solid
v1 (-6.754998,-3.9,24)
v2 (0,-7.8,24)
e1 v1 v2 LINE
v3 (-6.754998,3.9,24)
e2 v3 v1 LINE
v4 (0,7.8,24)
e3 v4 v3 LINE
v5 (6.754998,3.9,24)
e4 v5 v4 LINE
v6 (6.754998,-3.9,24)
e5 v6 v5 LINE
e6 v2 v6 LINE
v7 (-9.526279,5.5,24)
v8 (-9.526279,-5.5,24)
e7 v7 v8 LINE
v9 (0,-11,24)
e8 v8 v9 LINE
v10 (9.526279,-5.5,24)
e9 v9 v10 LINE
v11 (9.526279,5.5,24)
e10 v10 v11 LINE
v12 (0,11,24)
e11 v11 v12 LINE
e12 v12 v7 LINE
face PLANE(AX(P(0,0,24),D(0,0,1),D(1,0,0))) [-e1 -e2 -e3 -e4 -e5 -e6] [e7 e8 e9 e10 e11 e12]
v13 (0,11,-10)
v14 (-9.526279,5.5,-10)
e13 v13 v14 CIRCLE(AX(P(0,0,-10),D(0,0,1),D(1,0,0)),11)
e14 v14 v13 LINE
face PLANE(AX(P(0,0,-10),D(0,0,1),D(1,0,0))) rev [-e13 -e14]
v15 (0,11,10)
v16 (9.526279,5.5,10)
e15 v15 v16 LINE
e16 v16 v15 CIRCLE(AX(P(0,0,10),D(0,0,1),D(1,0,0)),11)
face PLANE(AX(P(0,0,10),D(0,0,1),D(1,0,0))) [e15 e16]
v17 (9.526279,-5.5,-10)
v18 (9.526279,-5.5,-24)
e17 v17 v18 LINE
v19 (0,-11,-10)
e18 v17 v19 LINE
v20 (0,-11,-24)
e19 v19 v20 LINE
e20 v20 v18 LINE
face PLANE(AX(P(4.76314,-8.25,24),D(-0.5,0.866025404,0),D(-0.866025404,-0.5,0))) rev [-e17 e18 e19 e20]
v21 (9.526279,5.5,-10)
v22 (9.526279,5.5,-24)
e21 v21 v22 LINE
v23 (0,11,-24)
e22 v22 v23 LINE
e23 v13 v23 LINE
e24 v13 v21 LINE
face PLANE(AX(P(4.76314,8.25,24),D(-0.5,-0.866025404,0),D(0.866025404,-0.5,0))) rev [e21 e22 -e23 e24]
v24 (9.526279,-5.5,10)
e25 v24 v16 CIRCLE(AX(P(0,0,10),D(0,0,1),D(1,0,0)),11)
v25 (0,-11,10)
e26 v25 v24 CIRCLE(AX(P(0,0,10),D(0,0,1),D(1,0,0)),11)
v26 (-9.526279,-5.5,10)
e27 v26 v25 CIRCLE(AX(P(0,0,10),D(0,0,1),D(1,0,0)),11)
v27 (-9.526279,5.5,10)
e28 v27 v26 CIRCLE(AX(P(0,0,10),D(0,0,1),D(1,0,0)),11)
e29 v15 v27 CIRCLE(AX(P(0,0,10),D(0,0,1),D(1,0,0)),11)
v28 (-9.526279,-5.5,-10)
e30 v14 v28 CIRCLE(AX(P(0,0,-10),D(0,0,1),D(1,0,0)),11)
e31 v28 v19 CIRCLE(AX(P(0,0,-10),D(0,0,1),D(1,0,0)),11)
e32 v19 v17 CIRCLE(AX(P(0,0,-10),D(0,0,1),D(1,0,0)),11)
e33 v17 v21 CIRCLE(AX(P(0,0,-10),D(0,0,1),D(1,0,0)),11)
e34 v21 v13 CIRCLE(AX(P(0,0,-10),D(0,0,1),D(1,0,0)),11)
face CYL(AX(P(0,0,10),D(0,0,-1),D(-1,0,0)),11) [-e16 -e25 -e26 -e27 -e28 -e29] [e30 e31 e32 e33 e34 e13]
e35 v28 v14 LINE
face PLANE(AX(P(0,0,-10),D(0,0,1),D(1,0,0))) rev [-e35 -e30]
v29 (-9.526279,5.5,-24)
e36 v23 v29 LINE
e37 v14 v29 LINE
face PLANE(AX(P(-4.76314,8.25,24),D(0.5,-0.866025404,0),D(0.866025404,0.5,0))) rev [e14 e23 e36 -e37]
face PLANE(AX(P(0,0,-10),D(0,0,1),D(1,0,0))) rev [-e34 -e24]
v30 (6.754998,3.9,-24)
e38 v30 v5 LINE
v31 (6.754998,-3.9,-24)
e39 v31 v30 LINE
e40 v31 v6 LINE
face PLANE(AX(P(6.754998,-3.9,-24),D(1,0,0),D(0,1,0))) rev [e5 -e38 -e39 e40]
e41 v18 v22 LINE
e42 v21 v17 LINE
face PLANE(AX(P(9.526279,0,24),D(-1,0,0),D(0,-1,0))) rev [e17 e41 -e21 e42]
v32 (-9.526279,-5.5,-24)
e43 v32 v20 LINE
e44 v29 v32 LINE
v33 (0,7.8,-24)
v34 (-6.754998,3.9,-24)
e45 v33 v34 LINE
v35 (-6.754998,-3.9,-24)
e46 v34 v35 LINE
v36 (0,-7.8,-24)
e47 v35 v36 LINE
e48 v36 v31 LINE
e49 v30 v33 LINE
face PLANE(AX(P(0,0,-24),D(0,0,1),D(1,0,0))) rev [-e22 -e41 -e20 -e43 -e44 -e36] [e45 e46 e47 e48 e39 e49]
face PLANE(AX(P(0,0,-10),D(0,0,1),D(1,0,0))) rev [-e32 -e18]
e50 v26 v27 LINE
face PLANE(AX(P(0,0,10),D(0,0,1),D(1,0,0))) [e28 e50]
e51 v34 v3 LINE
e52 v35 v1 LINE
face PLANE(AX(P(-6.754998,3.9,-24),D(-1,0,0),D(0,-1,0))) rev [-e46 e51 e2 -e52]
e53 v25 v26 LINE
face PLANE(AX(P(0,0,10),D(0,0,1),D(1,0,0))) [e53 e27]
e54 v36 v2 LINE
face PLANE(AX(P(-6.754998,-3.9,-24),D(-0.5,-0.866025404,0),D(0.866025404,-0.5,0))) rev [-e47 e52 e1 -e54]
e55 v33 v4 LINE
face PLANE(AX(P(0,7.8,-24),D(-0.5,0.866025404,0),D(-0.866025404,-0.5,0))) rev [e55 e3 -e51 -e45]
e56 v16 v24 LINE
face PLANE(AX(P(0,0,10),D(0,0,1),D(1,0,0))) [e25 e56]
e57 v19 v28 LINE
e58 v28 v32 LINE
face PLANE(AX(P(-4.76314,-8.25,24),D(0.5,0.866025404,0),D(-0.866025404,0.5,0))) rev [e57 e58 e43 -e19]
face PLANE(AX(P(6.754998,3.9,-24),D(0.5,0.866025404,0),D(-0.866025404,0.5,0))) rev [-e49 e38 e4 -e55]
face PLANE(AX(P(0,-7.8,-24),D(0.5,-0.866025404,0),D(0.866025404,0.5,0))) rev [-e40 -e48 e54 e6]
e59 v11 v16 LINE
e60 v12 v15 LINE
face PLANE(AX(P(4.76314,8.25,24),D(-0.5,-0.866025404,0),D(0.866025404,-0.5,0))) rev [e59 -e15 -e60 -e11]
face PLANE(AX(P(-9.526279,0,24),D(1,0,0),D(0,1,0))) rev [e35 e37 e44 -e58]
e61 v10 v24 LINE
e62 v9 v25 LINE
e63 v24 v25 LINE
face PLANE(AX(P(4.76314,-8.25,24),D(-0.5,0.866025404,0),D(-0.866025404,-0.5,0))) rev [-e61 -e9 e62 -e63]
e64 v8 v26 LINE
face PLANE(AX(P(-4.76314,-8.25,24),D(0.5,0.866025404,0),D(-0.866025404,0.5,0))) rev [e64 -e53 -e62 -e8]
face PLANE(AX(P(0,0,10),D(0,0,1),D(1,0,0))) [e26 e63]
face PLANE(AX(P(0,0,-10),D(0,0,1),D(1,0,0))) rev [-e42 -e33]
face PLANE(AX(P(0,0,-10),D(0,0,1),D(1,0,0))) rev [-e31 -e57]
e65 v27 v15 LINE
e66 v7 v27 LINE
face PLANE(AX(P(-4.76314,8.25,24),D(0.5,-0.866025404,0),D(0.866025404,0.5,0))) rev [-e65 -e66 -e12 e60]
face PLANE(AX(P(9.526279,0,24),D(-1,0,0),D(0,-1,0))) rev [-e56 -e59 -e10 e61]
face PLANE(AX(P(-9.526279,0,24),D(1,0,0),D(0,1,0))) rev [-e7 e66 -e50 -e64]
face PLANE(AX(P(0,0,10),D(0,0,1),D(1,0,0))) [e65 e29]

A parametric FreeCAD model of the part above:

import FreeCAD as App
import Part
import Sketcher

V = App.Vector
Q = App.Units.Quantity

doc = App.newDocument("Part")
body = doc.addObject("PartDesign::Body", "Body")

# Sketch on XY plane
sketch1 = doc.addObject("Sketcher::SketchObject", "Sketch")
body.addObject(sketch1)
sketch1.AttachmentSupport = (doc.XY_Plane, [""])
sketch1.MapMode = "FlatFace"
sketch1.addGeometry(Part.Circle(V(0, 0, 0), V(0, 0, 1), 11), False)
sketch1.addGeometry(Part.Circle(V(0, 0, 0), V(0, 0, 1), 6), False)
sketch1.addConstraint(Sketcher.Constraint("Coincident", 0, 3, -1, 1))
sketch1.addConstraint(Sketcher.Constraint("Coincident", 1, 3, -1, 1))
sketch1.addConstraint(Sketcher.Constraint("Diameter", 0, Q("22 mm")))
sketch1.addConstraint(Sketcher.Constraint("Diameter", 1, Q("12.8 mm")))
pad1 = doc.addObject("PartDesign::Pad", "Pad")
body.addObject(pad1)
pad1.Profile = sketch1
pad1.Length = 20
pad1.Midplane = True

# Sketch on XY plane
sketch2 = doc.addObject("Sketcher::SketchObject", "Sketch001")
body.addObject(sketch2)
sketch2.AttachmentSupport = (doc.XY_Plane, [""])
sketch2.MapMode = "FlatFace"
sketch2.addGeometry(Part.LineSegment(V(0, -11, 0), V(10, -6, 0)), False)
sketch2.addGeometry(Part.LineSegment(V(10, -6, 0), V(10, 6, 0)), False)
sketch2.addGeometry(Part.LineSegment(V(10, 6, 0), V(0, 11, 0)), False)
sketch2.addGeometry(Part.LineSegment(V(0, 11, 0), V(-10, 6, 0)), False)
sketch2.addGeometry(Part.LineSegment(V(-10, 6, 0), V(-10, -6, 0)), False)
sketch2.addGeometry(Part.LineSegment(V(-10, -6, 0), V(0, -11, 0)), False)
sketch2.addConstraint(Sketcher.Constraint("Coincident", 0, 2, 1, 1))
sketch2.addConstraint(Sketcher.Constraint("Coincident", 1, 2, 2, 1))
sketch2.addConstraint(Sketcher.Constraint("Coincident", 2, 2, 3, 1))
sketch2.addConstraint(Sketcher.Constraint("Coincident", 3, 2, 4, 1))
sketch2.addConstraint(Sketcher.Constraint("Coincident", 4, 2, 5, 1))
sketch2.addConstraint(Sketcher.Constraint("Coincident", 5, 2, 0, 1))
sketch2.addConstraint(Sketcher.Constraint("Vertical", 1))
sketch2.addConstraint(Sketcher.Constraint("Vertical", 4))
sketch2.addConstraint(Sketcher.Constraint("Symmetric", 0, 2, 3, 2, -1, 1))
sketch2.addConstraint(Sketcher.Constraint("Symmetric", 2, 2, 5, 2, -1, 1))
sketch2.addConstraint(Sketcher.Constraint("PointOnObject", 2, 2, -2))
sketch2.addConstraint(Sketcher.Constraint("Parallel", 2, 5))
sketch2.addConstraint(Sketcher.Constraint("Horizontal", 1, 2, 3, 2))
sketch2.addConstraint(Sketcher.Constraint("DistanceY", 1, 1, 1, 2, Q("11 mm")))
sketch2.addConstraint(Sketcher.Constraint("Angle", 0, Q("30 deg")))
sketch2.addConstraint(Sketcher.Constraint("Distance", 0, Q("11 mm")))
pad2 = doc.addObject("PartDesign::Pad", "Pad001")
body.addObject(pad2)
pad2.Profile = sketch2
pad2.Length = 48
pad2.Midplane = True

# Sketch on XY plane
sketch3 = doc.addObject("Sketcher::SketchObject", "Sketch002")
body.addObject(sketch3)
sketch3.AttachmentSupport = (doc.XY_Plane, [""])
sketch3.MapMode = "FlatFace"
sketch3.AttachmentOffset = App.Placement(V(0, 0, 24), App.Rotation())
sketch3.addGeometry(Part.LineSegment(V(0, -8, 0), V(7, -4, 0)), False)
sketch3.addGeometry(Part.LineSegment(V(7, -4, 0), V(7, 4, 0)), False)
sketch3.addGeometry(Part.LineSegment(V(7, 4, 0), V(0, 8, 0)), False)
sketch3.addGeometry(Part.LineSegment(V(0, 8, 0), V(-7, 4, 0)), False)
sketch3.addGeometry(Part.LineSegment(V(-7, 4, 0), V(-7, -4, 0)), False)
sketch3.addGeometry(Part.LineSegment(V(-7, -4, 0), V(0, -8, 0)), False)
sketch3.addConstraint(Sketcher.Constraint("Coincident", 0, 2, 1, 1))
sketch3.addConstraint(Sketcher.Constraint("Coincident", 1, 2, 2, 1))
sketch3.addConstraint(Sketcher.Constraint("Coincident", 2, 2, 3, 1))
sketch3.addConstraint(Sketcher.Constraint("Coincident", 3, 2, 4, 1))
sketch3.addConstraint(Sketcher.Constraint("Coincident", 4, 2, 5, 1))
sketch3.addConstraint(Sketcher.Constraint("Coincident", 5, 2, 0, 1))
sketch3.addConstraint(Sketcher.Constraint("Vertical", 1))
sketch3.addConstraint(Sketcher.Constraint("Vertical", 4))
sketch3.addConstraint(Sketcher.Constraint("Symmetric", 0, 2, 3, 2, -1, 1))
sketch3.addConstraint(Sketcher.Constraint("Symmetric", 2, 2, 5, 2, -1, 1))
sketch3.addConstraint(Sketcher.Constraint("PointOnObject", 2, 2, -2))
sketch3.addConstraint(Sketcher.Constraint("Parallel", 2, 5))
sketch3.addConstraint(Sketcher.Constraint("Horizontal", 1, 2, 3, 2))
sketch3.addConstraint(Sketcher.Constraint("Angle", 0, Q("30 deg")))
sketch3.addConstraint(Sketcher.Constraint("DistanceY", 1, 1, 1, 2, Q("7.8 mm")))
sketch3.addConstraint(Sketcher.Constraint("Distance", 0, Q("7.8 mm")))
pocket1 = doc.addObject("PartDesign::Pocket", "Pocket")
body.addObject(pocket1)
pocket1.Profile = sketch3
pocket1.Type = "ThroughAll"

doc.recompute()
